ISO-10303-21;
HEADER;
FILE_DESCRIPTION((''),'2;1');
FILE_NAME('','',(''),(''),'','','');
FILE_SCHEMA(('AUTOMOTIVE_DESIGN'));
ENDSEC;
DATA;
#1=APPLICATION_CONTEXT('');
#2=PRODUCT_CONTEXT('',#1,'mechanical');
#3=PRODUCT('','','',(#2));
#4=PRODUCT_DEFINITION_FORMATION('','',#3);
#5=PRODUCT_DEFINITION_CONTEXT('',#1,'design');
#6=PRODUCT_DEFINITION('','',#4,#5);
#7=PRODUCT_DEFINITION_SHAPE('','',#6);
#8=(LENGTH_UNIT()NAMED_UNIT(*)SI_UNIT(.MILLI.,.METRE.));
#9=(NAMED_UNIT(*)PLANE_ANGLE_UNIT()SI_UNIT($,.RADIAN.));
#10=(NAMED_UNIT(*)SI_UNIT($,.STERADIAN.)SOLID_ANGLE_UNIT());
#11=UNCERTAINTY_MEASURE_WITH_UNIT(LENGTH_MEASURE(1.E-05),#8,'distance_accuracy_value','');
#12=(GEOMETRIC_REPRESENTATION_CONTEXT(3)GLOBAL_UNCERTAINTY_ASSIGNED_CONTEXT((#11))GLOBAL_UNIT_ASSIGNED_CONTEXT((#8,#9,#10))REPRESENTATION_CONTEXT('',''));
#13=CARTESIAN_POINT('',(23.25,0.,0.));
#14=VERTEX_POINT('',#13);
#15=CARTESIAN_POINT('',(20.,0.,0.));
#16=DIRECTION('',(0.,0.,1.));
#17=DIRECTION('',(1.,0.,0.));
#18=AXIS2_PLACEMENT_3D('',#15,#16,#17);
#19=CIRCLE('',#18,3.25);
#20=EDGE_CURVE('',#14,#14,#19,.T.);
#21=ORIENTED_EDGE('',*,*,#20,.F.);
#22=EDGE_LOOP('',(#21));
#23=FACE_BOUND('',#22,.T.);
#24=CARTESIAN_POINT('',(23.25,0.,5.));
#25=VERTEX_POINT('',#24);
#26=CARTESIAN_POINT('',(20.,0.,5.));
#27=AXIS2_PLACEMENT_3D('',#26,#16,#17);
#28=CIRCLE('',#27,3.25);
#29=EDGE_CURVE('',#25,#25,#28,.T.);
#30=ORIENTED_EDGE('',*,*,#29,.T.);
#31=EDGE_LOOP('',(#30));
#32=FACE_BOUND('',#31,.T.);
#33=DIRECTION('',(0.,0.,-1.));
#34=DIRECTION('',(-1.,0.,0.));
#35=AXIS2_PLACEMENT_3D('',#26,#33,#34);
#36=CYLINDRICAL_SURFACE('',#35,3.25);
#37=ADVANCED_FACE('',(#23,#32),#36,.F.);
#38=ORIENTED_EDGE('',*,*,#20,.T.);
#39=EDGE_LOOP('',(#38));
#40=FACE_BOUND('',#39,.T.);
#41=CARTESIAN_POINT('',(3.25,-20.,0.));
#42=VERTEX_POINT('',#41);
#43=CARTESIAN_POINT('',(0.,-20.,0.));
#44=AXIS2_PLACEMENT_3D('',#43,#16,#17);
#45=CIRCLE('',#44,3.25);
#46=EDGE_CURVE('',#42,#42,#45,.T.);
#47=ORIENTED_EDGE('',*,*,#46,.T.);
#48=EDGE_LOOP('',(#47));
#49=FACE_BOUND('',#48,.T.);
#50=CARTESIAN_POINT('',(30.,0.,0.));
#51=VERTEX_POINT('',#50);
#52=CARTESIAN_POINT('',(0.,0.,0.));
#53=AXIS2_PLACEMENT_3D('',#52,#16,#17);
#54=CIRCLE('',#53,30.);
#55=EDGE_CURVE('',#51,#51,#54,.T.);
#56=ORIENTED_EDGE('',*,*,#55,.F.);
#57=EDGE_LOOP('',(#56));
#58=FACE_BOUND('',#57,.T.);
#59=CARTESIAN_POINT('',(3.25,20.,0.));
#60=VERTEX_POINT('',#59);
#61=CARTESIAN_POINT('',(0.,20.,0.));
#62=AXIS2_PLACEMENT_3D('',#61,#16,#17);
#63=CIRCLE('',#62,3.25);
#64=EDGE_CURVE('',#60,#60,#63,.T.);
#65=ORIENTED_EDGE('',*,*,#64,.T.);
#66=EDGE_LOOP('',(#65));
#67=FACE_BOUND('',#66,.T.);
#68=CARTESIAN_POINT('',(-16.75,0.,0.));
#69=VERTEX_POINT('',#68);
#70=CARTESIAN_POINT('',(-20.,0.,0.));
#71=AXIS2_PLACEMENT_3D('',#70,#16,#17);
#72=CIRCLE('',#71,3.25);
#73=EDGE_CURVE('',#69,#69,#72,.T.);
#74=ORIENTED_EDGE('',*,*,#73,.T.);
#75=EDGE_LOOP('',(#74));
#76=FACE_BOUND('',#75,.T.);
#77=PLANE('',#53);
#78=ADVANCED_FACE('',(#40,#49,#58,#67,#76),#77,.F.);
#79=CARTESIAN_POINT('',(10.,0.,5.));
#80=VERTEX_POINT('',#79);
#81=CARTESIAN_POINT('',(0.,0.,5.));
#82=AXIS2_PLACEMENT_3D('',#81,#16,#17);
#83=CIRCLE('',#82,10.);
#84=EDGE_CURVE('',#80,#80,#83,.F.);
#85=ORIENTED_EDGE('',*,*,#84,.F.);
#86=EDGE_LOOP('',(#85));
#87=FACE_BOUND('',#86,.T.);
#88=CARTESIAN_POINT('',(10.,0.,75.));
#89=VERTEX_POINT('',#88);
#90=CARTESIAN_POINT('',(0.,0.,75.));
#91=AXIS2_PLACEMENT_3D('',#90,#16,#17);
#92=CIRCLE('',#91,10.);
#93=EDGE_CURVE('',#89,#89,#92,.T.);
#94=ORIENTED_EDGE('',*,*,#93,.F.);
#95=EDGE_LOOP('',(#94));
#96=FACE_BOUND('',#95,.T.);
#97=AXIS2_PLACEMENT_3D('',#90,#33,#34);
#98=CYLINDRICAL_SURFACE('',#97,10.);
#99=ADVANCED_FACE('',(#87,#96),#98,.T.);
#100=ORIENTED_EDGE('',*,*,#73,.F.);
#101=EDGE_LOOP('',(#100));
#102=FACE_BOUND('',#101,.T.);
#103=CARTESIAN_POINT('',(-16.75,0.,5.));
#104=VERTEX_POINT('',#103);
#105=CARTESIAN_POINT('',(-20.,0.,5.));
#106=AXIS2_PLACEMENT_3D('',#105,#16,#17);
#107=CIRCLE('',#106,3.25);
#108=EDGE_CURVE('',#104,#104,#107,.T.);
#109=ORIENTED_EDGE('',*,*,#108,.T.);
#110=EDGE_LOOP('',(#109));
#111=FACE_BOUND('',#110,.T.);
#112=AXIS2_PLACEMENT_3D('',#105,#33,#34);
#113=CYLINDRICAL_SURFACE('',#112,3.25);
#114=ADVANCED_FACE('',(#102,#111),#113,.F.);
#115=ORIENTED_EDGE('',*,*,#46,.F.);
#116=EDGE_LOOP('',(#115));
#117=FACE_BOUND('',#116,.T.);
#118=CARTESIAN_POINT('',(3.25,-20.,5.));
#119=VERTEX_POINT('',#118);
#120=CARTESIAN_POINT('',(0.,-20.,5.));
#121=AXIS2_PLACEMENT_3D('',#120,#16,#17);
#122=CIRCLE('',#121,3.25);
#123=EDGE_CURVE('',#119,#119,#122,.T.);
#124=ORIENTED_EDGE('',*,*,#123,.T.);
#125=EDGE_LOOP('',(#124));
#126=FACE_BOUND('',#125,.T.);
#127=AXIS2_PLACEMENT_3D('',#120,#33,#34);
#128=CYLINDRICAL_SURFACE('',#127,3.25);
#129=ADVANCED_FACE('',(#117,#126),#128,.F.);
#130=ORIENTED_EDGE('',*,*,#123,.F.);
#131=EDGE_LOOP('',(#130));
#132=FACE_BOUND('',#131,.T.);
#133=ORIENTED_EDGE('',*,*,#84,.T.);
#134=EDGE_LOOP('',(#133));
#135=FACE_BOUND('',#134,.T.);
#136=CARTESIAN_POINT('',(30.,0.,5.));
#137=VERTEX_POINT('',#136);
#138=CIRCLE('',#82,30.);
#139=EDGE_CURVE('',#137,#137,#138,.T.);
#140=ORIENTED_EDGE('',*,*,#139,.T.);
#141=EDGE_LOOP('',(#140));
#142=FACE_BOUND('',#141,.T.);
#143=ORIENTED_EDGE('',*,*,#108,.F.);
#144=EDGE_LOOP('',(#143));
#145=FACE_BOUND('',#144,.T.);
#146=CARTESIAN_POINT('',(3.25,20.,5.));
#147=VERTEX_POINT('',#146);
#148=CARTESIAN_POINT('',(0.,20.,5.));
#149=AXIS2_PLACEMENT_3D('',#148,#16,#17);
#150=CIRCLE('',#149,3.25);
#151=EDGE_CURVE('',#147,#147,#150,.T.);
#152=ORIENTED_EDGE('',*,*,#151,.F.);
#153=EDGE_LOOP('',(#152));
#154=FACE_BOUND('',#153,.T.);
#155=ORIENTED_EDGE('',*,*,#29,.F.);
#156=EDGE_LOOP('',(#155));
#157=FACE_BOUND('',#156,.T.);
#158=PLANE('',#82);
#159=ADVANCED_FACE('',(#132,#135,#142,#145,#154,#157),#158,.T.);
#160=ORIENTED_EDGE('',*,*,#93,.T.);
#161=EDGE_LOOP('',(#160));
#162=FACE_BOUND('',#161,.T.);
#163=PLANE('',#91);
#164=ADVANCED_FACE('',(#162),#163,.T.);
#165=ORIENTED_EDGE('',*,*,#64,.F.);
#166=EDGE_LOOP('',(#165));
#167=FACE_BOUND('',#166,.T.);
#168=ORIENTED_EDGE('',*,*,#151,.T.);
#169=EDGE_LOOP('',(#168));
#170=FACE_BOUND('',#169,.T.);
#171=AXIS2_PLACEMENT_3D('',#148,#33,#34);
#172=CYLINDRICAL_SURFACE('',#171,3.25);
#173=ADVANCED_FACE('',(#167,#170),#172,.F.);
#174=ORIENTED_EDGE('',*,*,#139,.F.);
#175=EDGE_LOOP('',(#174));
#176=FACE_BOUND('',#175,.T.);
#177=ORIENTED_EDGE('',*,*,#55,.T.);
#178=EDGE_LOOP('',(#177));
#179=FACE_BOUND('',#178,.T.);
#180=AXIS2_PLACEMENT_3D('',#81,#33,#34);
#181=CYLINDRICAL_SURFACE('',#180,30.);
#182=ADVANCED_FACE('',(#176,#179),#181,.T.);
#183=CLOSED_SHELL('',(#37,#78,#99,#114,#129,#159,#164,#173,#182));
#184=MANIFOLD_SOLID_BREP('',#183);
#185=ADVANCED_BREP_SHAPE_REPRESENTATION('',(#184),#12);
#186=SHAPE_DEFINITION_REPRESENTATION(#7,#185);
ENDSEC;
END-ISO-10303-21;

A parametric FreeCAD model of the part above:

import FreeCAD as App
import Part
import Sketcher
from FreeCAD import Vector

doc = App.newDocument("Part")
params = doc.addObject("Spreadsheet::Sheet", "Params")
for row, (alias, value) in enumerate([
    ("sketch1_diameter", "60 mm"),
    ("sketch1_diameter2", "6.5 mm"),
    ("pad1_length", "5 mm"),
    ("sketch2_diameter", "20 mm"),
    ("pad2_length", "75 mm"),
], start=1):
    params.set(f"A{row}", alias)
    params.set(f"B{row}", "=" + value)
    params.setAlias(f"B{row}", alias)

body = doc.addObject("PartDesign::Body", "Body")

sketch1 = body.newObject("Sketcher::SketchObject", "Sketch")
sketch1.AttachmentSupport = (doc.getObject("XY_Plane"), [""])
sketch1.MapMode = "FlatFace"
sketch1.addGeometry(Part.Circle(Vector(0, 0, 0), Vector(0, 0, 1), 30), False)
sketch1.addGeometry(Part.Circle(Vector(0, -20, 0), Vector(0, 0, 1), 3.25), False)
sketch1.addGeometry(Part.Circle(Vector(-20, 0, 0), Vector(0, 0, 1), 3.25), False)
sketch1.addGeometry(Part.Circle(Vector(20, 0, 0), Vector(0, 0, 1), 3.25), False)
sketch1.addGeometry(Part.Circle(Vector(0, 20, 0), Vector(0, 0, 1), 3.25), False)
sketch1.addConstraint(Sketcher.Constraint("Coincident", 0, 3, -1, 1))
sketch1.addConstraint(Sketcher.Constraint("Equal", 1, 2))
sketch1.addConstraint(Sketcher.Constraint("Equal", 2, 3))
sketch1.addConstraint(Sketcher.Constraint("Equal", 3, 4))
sketch1.addConstraint(Sketcher.Constraint("Symmetric", 2, 3, 3, 3, -1, 1))
sketch1.addConstraint(Sketcher.Constraint("Symmetric", 1, 3, 4, 3, -1, 1))
sketch1.addConstraint(Sketcher.Constraint("PointOnObject", 1, 3, -2))
sketch1.addConstraint(Sketcher.Constraint("PointOnObject", 2, 3, -1))
sketch1.addConstraint(Sketcher.Constraint("Diameter", 0, 60.0))
sketch1.addConstraint(Sketcher.Constraint("Diameter", 1, 6.5))
sketch1.addConstraint(Sketcher.Constraint("DistanceY", 1, 3, -1, 1, 20.0))
sketch1.addConstraint(Sketcher.Constraint("DistanceX", 2, 3, -1, 1, 20.0))
sketch1.setExpression("Constraints[8]", "Params.sketch1_diameter")
sketch1.setExpression("Constraints[9]", "Params.sketch1_diameter2")
pad1 = body.newObject("PartDesign::Pad", "Pad")
pad1.Profile = sketch1
pad1.setExpression("Length", "Params.pad1_length")

sketch2 = body.newObject("Sketcher::SketchObject", "Sketch001")
sketch2.AttachmentSupport = (doc.getObject("XY_Plane"), [""])
sketch2.MapMode = "FlatFace"
sketch2.addGeometry(Part.Circle(Vector(0, 0, 0), Vector(0, 0, 1), 10), False)
sketch2.addConstraint(Sketcher.Constraint("Coincident", 0, 3, -1, 1))
sketch2.addConstraint(Sketcher.Constraint("Diameter", 0, 20.0))
sketch2.setExpression("Constraints[1]", "Params.sketch2_diameter")
pad2 = body.newObject("PartDesign::Pad", "Pad001")
pad2.Profile = sketch2
pad2.setExpression("Length", "Params.pad2_length")

doc.recompute()
